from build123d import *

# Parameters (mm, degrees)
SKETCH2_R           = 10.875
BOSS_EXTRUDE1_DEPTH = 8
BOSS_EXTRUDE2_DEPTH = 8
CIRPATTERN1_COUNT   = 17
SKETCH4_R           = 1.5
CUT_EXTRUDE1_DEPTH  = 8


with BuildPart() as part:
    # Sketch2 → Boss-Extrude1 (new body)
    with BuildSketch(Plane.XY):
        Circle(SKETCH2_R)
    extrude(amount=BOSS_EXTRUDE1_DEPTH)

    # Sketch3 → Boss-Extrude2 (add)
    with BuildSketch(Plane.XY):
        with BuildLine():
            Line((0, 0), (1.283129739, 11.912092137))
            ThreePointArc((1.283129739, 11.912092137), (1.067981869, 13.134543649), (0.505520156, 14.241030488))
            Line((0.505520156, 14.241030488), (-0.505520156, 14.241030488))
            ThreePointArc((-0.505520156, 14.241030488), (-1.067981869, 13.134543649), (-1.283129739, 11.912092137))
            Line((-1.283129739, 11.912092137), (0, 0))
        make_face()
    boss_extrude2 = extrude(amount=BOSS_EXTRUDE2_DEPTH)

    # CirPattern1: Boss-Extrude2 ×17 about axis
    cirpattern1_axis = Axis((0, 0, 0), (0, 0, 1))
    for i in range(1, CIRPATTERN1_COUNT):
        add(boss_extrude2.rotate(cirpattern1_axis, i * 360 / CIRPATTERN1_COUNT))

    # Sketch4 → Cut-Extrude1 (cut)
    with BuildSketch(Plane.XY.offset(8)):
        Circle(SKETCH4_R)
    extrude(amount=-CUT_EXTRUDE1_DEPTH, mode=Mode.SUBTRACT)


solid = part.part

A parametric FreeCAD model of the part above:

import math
import FreeCAD as App
import Part
import Sketcher
Q = App.Units.Quantity

doc = App.newDocument("Part")
params = doc.addObject("Spreadsheet::Sheet", "Params")
for row, (alias, value) in enumerate([
    ("sketch1_diameter", "21.75 mm"),
    ("pad1_length", "8 mm"),
    ("pad2_length", "8 mm"),
    ("sketch3_diameter", "3 mm"),
    ("pocket1_length", "8 mm"),
], start=1):
    params.set(f"A{row}", alias)
    params.set(f"B{row}", "=" + value)
    params.setAlias(f"B{row}", alias)

body = doc.addObject("PartDesign::Body", "Body")

# Sketch on XY plane
sketch1 = body.newObject("Sketcher::SketchObject", "Sketch")
sketch1.AttachmentSupport = (doc.getObject("XY_Plane"), [""])
sketch1.MapMode = "FlatFace"
sketch1.addGeometry(Part.Circle(App.Vector(0, 0, 0), App.Vector(0, 0, 1), 11), False)
sketch1.addConstraint(Sketcher.Constraint("Coincident", 0, 3, -1, 1))
sketch1.addConstraint(Sketcher.Constraint("Diameter", 0, Q("21.75 mm")))
sketch1.setExpression("Constraints[1]", "Params.sketch1_diameter")
pad1 = body.newObject("PartDesign::Pad", "Pad")
pad1.Profile = sketch1
pad1.setExpression("Length", "Params.pad1_length")

# Sketch on XY plane
sketch2 = body.newObject("Sketcher::SketchObject", "Sketch001")
sketch2.AttachmentSupport = (doc.getObject("XY_Plane"), [""])
sketch2.MapMode = "FlatFace"
sketch2.addGeometry(Part.LineSegment(App.Vector(0, 0, 0), App.Vector(1.3, 11.9, 0)), False)
sketch2.addGeometry(Part.ArcOfCircle(Part.Circle(App.Vector(-2.9, 11.8, 0), App.Vector(0, 0, 1), 4.2), math.radians(1), math.radians(35)), False)
sketch2.addGeometry(Part.LineSegment(App.Vector(0.5, 14.2, 0), App.Vector(-0.5, 14.2, 0)), False)
sketch2.addGeometry(Part.ArcOfCircle(Part.Circle(App.Vector(2.9, 11.8, 0), App.Vector(0, 0, 1), 4.2), math.radians(145), math.radians(179)), False)
sketch2.addGeometry(Part.LineSegment(App.Vector(-1.3, 11.9, 0), App.Vector(0, 0, 0)), False)
sketch2.addConstraint(Sketcher.Constraint("Coincident", 0, 2, 1, 1))
sketch2.addConstraint(Sketcher.Constraint("Coincident", 1, 2, 2, 1))
sketch2.addConstraint(Sketcher.Constraint("Coincident", 2, 2, 3, 1))
sketch2.addConstraint(Sketcher.Constraint("Coincident", 3, 2, 4, 1))
sketch2.addConstraint(Sketcher.Constraint("Coincident", 4, 2, 0, 1))
sketch2.addConstraint(Sketcher.Constraint("Horizontal", 2))
sketch2.addConstraint(Sketcher.Constraint("Coincident", 4, 2, -1, 1))
sketch2.addConstraint(Sketcher.Constraint("Equal", 1, 3))
sketch2.addConstraint(Sketcher.Constraint("Symmetric", 1, 3, 3, 3, -2))
sketch2.addConstraint(Sketcher.Constraint("Horizontal", 0, 2, 3, 2))
sketch2.addConstraint(Sketcher.Constraint("Distance", 0, Q("11.981 mm")))
sketch2.addConstraint(Sketcher.Constraint("Radius", 1, Q("4.207634 mm")))
sketch2.addConstraint(Sketcher.Constraint("DistanceX", 2, 2, 2, 1, Q("1.01104 mm")))
sketch2.addConstraint(Sketcher.Constraint("DistanceX", -1, 1, 0, 2, Q("1.28313 mm")))
sketch2.addConstraint(Sketcher.Constraint("DistanceY", -1, 1, 1, 2, Q("14.24103 mm")))
pad2 = body.newObject("PartDesign::Pad", "Pad001")
pad2.Profile = sketch2
pad2.setExpression("Length", "Params.pad2_length")
doc.recompute()

polarpattern = body.newObject("PartDesign::PolarPattern", "PolarPattern")
polarpattern.Originals = [pad2]
polarpattern.Axis = (doc.getObject("Z_Axis"), [""])
polarpattern.Angle = 360
polarpattern.Occurrences = 17
body.Tip = polarpattern

# Sketch on XY plane
sketch3 = body.newObject("Sketcher::SketchObject", "Sketch002")
sketch3.AttachmentSupport = (doc.getObject("XY_Plane"), [""])
sketch3.MapMode = "FlatFace"
sketch3.AttachmentOffset = App.Placement(App.Vector(0, 0, 8), App.Rotation())
sketch3.addGeometry(Part.Circle(App.Vector(0, 0, 0), App.Vector(0, 0, 1), 1.5), False)
sketch3.addConstraint(Sketcher.Constraint("Coincident", 0, 3, -1, 1))
sketch3.addConstraint(Sketcher.Constraint("Diameter", 0, Q("3 mm")))
sketch3.setExpression("Constraints[1]", "Params.sketch3_diameter")
pocket1 = body.newObject("PartDesign::Pocket", "Pocket")
pocket1.Profile = sketch3
pocket1.setExpression("Length", "Params.pocket1_length")

doc.recompute()
